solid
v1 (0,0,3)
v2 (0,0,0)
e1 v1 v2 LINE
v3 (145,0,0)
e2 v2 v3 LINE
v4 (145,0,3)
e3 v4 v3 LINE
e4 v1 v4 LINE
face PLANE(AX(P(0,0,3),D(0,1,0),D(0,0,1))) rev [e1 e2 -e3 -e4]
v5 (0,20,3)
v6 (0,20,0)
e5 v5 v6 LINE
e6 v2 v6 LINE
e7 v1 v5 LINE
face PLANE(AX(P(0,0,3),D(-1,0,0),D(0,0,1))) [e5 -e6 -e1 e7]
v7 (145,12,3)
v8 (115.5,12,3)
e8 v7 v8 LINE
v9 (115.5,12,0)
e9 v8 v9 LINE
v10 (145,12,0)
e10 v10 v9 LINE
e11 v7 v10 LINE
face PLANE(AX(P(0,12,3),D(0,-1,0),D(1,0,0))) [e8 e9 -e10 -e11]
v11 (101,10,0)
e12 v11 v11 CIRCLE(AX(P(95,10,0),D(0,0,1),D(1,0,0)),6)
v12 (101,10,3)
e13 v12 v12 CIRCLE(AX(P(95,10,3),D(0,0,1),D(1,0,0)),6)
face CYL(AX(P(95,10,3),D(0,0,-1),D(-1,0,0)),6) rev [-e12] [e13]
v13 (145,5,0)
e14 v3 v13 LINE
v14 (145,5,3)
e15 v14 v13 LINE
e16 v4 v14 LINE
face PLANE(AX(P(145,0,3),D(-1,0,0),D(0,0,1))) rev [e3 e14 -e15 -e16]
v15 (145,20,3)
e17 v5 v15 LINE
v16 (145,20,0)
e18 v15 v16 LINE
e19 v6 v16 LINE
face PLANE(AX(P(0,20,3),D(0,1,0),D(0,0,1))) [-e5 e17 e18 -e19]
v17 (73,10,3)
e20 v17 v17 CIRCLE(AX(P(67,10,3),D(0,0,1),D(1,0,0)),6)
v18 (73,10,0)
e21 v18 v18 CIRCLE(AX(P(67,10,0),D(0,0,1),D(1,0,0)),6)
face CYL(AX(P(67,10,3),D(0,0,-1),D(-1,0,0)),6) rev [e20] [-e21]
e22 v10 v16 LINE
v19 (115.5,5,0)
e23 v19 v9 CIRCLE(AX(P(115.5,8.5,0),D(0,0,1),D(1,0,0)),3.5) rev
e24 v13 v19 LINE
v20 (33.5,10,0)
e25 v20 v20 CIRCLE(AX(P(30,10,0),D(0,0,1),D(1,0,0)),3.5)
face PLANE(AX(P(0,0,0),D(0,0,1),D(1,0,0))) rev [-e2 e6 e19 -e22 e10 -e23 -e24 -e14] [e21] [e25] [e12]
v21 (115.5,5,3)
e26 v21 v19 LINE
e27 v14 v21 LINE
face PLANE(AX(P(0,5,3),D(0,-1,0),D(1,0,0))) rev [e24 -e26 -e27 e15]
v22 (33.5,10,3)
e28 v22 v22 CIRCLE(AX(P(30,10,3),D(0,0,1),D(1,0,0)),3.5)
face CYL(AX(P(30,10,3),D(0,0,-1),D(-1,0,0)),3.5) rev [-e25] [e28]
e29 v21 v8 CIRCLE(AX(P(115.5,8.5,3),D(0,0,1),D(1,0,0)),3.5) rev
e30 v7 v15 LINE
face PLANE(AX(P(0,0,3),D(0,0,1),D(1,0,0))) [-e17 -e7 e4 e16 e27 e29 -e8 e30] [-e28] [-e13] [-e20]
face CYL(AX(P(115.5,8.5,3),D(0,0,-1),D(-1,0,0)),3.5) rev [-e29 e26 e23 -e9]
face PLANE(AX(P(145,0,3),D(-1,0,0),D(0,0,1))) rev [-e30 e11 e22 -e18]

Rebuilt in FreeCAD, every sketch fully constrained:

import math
import FreeCAD as App
import Part
import Sketcher
Q = App.Units.Quantity

doc = App.newDocument("Part")
body = doc.addObject("PartDesign::Body", "Body")

sketch1 = body.newObject("Sketcher::SketchObject", "Sketch")
sketch1.AttachmentSupport = (doc.getObject("XY_Plane"), [""])
sketch1.MapMode = "FlatFace"
sketch1.addGeometry([
    Part.LineSegment(App.Vector(0, 20, 0), App.Vector(0, 0, 0)),
    Part.LineSegment(App.Vector(0, 0, 0), App.Vector(145, 0, 0)),
    Part.LineSegment(App.Vector(145, 0, 0), App.Vector(145, 5, 0)),
    Part.LineSegment(App.Vector(145, 5, 0), App.Vector(115.5, 5, 0)),
    Part.ArcOfCircle(Part.Circle(App.Vector(115.5, 8.5, 0), App.Vector(0, 0, 1), 3.5), math.radians(90), math.radians(270)),
    Part.LineSegment(App.Vector(115.5, 12, 0), App.Vector(145, 12, 0)),
    Part.LineSegment(App.Vector(145, 12, 0), App.Vector(145, 20, 0)),
    Part.LineSegment(App.Vector(145, 20, 0), App.Vector(0, 20, 0)),
    Part.Circle(App.Vector(30, 10, 0), App.Vector(0, 0, 1), 3.5),
    Part.Circle(App.Vector(67, 10, 0), App.Vector(0, 0, 1), 6),
    Part.Circle(App.Vector(95, 10, 0), App.Vector(0, 0, 1), 6),
], False)
sketch1.addConstraint([
    Sketcher.Constraint("Coincident", 0, 2, 1, 1),
    Sketcher.Constraint("Coincident", 1, 2, 2, 1),
    Sketcher.Constraint("Coincident", 2, 2, 3, 1),
    Sketcher.Constraint("Tangent", 3, 2, 4, 2),
    Sketcher.Constraint("Tangent", 4, 1, 5, 1),
    Sketcher.Constraint("Coincident", 5, 2, 6, 1),
    Sketcher.Constraint("Coincident", 6, 2, 7, 1),
    Sketcher.Constraint("Coincident", 7, 2, 0, 1),
    Sketcher.Constraint("Vertical", 0),
    Sketcher.Constraint("Horizontal", 1),
    Sketcher.Constraint("Vertical", 2),
    Sketcher.Constraint("Horizontal", 3),
    Sketcher.Constraint("Horizontal", 5),
    Sketcher.Constraint("Vertical", 6),
    Sketcher.Constraint("Horizontal", 7),
    Sketcher.Constraint("Coincident", 0, 2, -1, 1),
    Sketcher.Constraint("Equal", 4, 8),
    Sketcher.Constraint("Equal", 9, 10),
    Sketcher.Constraint("Horizontal", 8, 3, 9, 3),
    Sketcher.Constraint("Horizontal", 9, 3, 10, 3),
    Sketcher.Constraint("Vertical", 2, 2, 5, 2),
    Sketcher.Constraint("Diameter", 8, Q("7 mm")),
    Sketcher.Constraint("Diameter", 9, Q("12 mm")),
    Sketcher.Constraint("DistanceX", 1, 1, 1, 2, Q("145 mm")),
    Sketcher.Constraint("DistanceY", 0, 2, 0, 1, Q("20 mm")),
    Sketcher.Constraint("DistanceY", 2, 1, 2, 2, Q("5 mm")),
    Sketcher.Constraint("DistanceX", 3, 2, 3, 1, Q("29.5 mm")),
    Sketcher.Constraint("DistanceX", -1, 1, 8, 3, Q("30 mm")),
    Sketcher.Constraint("DistanceY", -1, 1, 8, 3, Q("10 mm")),
    Sketcher.Constraint("DistanceX", -1, 1, 9, 3, Q("67 mm")),
    Sketcher.Constraint("DistanceX", -1, 1, 10, 3, Q("95 mm")),
])
pad1 = body.newObject("PartDesign::Pad", "Pad")
pad1.Profile = sketch1
pad1.Length = 3

doc.recompute()
